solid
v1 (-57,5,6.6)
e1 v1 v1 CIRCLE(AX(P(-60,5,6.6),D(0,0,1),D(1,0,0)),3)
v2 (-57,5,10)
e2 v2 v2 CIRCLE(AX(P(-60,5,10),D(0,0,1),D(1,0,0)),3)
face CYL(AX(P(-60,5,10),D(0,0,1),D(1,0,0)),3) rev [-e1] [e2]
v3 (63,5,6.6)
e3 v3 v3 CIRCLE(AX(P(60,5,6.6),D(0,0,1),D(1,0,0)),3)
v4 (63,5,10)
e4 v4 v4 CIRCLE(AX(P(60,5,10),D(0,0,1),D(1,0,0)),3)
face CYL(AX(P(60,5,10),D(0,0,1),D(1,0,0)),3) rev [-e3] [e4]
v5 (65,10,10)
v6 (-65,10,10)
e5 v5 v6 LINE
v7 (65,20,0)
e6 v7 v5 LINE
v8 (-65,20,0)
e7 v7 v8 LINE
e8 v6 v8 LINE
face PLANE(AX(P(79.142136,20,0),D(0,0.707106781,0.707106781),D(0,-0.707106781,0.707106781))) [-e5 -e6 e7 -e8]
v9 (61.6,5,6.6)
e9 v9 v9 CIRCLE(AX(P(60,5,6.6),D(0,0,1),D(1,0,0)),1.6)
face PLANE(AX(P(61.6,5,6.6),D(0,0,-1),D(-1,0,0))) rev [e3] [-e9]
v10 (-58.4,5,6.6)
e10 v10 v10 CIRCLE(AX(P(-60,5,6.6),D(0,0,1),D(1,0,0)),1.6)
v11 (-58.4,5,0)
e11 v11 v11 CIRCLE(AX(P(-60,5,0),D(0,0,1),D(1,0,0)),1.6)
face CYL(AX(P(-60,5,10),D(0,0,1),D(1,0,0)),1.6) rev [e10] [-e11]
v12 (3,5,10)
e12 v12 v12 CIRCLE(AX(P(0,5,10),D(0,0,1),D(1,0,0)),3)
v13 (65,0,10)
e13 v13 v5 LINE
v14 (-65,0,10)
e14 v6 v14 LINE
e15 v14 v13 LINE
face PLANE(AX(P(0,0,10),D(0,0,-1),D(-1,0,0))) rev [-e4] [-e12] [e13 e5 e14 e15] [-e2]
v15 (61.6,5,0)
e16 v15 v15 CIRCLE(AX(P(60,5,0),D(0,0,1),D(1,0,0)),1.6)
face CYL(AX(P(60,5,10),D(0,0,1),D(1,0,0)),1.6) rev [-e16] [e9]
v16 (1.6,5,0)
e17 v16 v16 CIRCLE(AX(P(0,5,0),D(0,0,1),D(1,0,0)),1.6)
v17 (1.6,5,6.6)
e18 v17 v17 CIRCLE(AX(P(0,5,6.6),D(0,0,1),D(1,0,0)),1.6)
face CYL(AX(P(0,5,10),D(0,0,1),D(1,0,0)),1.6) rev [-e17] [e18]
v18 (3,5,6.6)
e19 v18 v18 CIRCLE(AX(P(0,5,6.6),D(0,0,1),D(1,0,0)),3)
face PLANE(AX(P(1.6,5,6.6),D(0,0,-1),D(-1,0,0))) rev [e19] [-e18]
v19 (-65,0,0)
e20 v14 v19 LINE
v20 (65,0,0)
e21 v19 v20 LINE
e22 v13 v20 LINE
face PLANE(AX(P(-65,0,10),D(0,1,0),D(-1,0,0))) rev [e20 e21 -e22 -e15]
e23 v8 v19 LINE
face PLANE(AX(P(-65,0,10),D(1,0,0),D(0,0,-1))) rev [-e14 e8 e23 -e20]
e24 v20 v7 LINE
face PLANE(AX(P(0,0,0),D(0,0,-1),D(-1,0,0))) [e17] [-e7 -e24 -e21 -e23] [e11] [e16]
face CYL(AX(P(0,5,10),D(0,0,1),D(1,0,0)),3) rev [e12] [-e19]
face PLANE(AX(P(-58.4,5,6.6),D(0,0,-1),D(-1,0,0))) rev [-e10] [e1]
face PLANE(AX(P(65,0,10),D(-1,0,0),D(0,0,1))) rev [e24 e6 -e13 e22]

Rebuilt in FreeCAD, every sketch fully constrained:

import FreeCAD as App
import Part
import Sketcher

V = App.Vector


def add_polygon(sketch, points):
    """Adds a closed chain of lines whose ends are joined by coincident constraints."""
    first, n = sketch.GeometryCount, len(points)
    for a, b in zip(points, points[1:] + points[:1]):
        sketch.addGeometry(Part.LineSegment(App.Vector(*a, 0), App.Vector(*b, 0)), False)
    for i in range(n):
        sketch.addConstraint(Sketcher.Constraint("Coincident", first + i, 2, first + (i + 1) % n, 1))

doc = App.newDocument("Part")
body = doc.addObject("PartDesign::Body", "Body")

sketch1 = body.newObject("Sketcher::SketchObject", "Sketch")
sketch1.AttachmentSupport = (doc.getObject("XY_Plane"), [""])
sketch1.MapMode = "FlatFace"
add_polygon(sketch1, [(-65, 10), (-65, 0), (65, 0), (65, 10)])
sketch1.addConstraint([
    Sketcher.Constraint("Vertical", 0),
    Sketcher.Constraint("Horizontal", 1),
    Sketcher.Constraint("Vertical", 2),
    Sketcher.Constraint("Horizontal", 3),
    Sketcher.Constraint("Symmetric", 0, 2, 1, 2, -1, 1),
    Sketcher.Constraint("DistanceX", 1, 1, 1, 2, 130.0),
    Sketcher.Constraint("DistanceY", 0, 2, 0, 1, 10.0),
])
pad1 = body.newObject("PartDesign::Pad", "Pad")
pad1.Profile = sketch1
pad1.Length = 10

sketch2 = body.newObject("Sketcher::SketchObject", "Sketch001")
sketch2.AttachmentSupport = (doc.getObject("XY_Plane"), [""])
sketch2.MapMode = "FlatFace"
sketch2.AttachmentOffset = App.Placement(V(0, 0, 10), App.Rotation())
sketch2.addGeometry([
    Part.Circle(V(-60, 5, 0), V(0, 0, 1), 1.6),
    Part.Circle(V(0, 5, 0), V(0, 0, 1), 1.6),
    Part.Circle(V(60, 5, 0), V(0, 0, 1), 1.6),
], False)
sketch2.addConstraint([
    Sketcher.Constraint("Equal", 0, 1),
    Sketcher.Constraint("Equal", 1, 2),
    Sketcher.Constraint("Symmetric", 0, 3, 2, 3, -2),
    Sketcher.Constraint("PointOnObject", 1, 3, -2),
    Sketcher.Constraint("Horizontal", 0, 3, 1, 3),
    Sketcher.Constraint("Diameter", 0, 3.2),
    Sketcher.Constraint("DistanceX", 0, 3, -1, 1, 60.0),
    Sketcher.Constraint("DistanceY", -1, 1, 0, 3, 5.0),
])
doc.recompute()
hole = body.newObject("PartDesign::Hole", "Hole")
hole.Profile = sketch2
hole.ThreadType = "None"
hole.Diameter = 3.2
hole.DepthType = "ThroughAll"
hole.HoleCutType = "Counterbore"
hole.HoleCutDiameter = 6
hole.HoleCutDepth = 3.4

sketch3 = body.newObject("Sketcher::SketchObject", "Sketch002")
sketch3.AttachmentSupport = (doc.getObject("YZ_Plane"), [""])
sketch3.MapMode = "FlatFace"
sketch3.AttachmentOffset = App.Placement(V(0, 0, -65), App.Rotation())
add_polygon(sketch3, [(10, 0), (10, 10), (20, 0)])
sketch3.addConstraint([
    Sketcher.Constraint("Vertical", 0),
    Sketcher.Constraint("Horizontal", 2),
    Sketcher.Constraint("PointOnObject", 1, 2, -1),
    Sketcher.Constraint("Equal", 2, 0),
    Sketcher.Constraint("DistanceX", 2, 2, 2, 1, 10.0),
    Sketcher.Constraint("DistanceX", -1, 1, 0, 2, 10.0),
])
pad2 = body.newObject("PartDesign::Pad", "Pad001")
pad2.Profile = sketch3
pad2.Length = 130

doc.recompute()
